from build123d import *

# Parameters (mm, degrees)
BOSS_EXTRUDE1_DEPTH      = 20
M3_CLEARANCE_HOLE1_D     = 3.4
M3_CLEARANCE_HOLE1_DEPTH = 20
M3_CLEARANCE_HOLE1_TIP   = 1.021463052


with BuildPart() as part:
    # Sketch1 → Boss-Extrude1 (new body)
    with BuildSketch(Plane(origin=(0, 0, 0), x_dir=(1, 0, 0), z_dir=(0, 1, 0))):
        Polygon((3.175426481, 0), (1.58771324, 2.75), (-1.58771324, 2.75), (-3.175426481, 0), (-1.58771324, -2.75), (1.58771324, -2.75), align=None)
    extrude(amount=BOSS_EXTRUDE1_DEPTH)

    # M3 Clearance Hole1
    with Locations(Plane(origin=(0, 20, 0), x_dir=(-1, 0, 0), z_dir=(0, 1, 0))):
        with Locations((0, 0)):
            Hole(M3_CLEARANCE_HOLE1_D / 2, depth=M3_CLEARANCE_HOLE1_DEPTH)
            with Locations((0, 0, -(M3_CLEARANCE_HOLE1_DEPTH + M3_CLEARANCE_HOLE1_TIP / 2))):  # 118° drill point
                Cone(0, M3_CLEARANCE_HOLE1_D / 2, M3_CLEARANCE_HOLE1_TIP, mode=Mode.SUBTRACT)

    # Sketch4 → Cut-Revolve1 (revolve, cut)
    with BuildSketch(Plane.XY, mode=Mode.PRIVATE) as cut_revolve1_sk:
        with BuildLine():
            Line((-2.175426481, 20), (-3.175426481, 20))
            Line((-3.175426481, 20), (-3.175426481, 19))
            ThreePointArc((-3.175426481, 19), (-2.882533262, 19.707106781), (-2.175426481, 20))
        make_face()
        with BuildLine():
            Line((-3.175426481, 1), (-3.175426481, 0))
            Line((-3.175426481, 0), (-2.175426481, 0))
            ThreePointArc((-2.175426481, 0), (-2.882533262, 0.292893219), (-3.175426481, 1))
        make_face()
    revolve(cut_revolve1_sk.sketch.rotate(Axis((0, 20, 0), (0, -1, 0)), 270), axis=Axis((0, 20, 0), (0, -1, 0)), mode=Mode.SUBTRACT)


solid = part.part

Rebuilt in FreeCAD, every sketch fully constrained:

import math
import FreeCAD as App
import Part
import Sketcher
from FreeCAD import Vector
Q = App.Units.Quantity

doc = App.newDocument("Part")
params = doc.addObject("Spreadsheet::Sheet", "Params")
for row, (alias, value) in enumerate([
    ("pad1_length", "20 mm"),
    ("sketch2_diameter", "3.4 mm"),
    ("hole_diameter", "3.4 mm"),
    ("hole_depth", "20 mm"),
    ("sketch3_radius", "1 mm"),
    ("groove_angle", "360 deg"),
], start=1):
    params.set(f"A{row}", alias)
    params.set(f"B{row}", "=" + value)
    params.setAlias(f"B{row}", alias)

body = doc.addObject("PartDesign::Body", "Body")

# Sketch on XZ plane
sketch1 = body.newObject("Sketcher::SketchObject", "Sketch")
sketch1.AttachmentSupport = (doc.getObject("XZ_Plane"), [""])
sketch1.MapMode = "FlatFace"
sketch1.addGeometry(Part.LineSegment(Vector(3.2, 0, 0), Vector(1.6, -2.8, 0)), False)
sketch1.addGeometry(Part.LineSegment(Vector(1.6, -2.8, 0), Vector(-1.6, -2.8, 0)), False)
sketch1.addGeometry(Part.LineSegment(Vector(-1.6, -2.8, 0), Vector(-3.2, 0, 0)), False)
sketch1.addGeometry(Part.LineSegment(Vector(-3.2, 0, 0), Vector(-1.6, 2.8, 0)), False)
sketch1.addGeometry(Part.LineSegment(Vector(-1.6, 2.8, 0), Vector(1.6, 2.8, 0)), False)
sketch1.addGeometry(Part.LineSegment(Vector(1.6, 2.8, 0), Vector(3.2, 0, 0)), False)
sketch1.addConstraint(Sketcher.Constraint("Coincident", 0, 2, 1, 1))
sketch1.addConstraint(Sketcher.Constraint("Coincident", 1, 2, 2, 1))
sketch1.addConstraint(Sketcher.Constraint("Coincident", 2, 2, 3, 1))
sketch1.addConstraint(Sketcher.Constraint("Coincident", 3, 2, 4, 1))
sketch1.addConstraint(Sketcher.Constraint("Coincident", 4, 2, 5, 1))
sketch1.addConstraint(Sketcher.Constraint("Coincident", 5, 2, 0, 1))
sketch1.addConstraint(Sketcher.Constraint("Horizontal", 1))
sketch1.addConstraint(Sketcher.Constraint("Horizontal", 4))
sketch1.addConstraint(Sketcher.Constraint("Symmetric", 0, 2, 3, 2, -1, 1))
sketch1.addConstraint(Sketcher.Constraint("Symmetric", 2, 2, 5, 2, -1, 1))
sketch1.addConstraint(Sketcher.Constraint("PointOnObject", 2, 2, -1))
sketch1.addConstraint(Sketcher.Constraint("Parallel", 2, 5))
sketch1.addConstraint(Sketcher.Constraint("Vertical", 1, 2, 3, 2))
sketch1.addConstraint(Sketcher.Constraint("Angle", 0, Q("-120 deg")))
sketch1.addConstraint(Sketcher.Constraint("DistanceY", 1, 2, 3, 2, 5.5))
sketch1.addConstraint(Sketcher.Constraint("DistanceX", 1, 2, 1, 1, 3.175426))
pad1 = body.newObject("PartDesign::Pad", "Pad")
pad1.Profile = sketch1
pad1.setExpression("Length", "Params.pad1_length")
pad1.Reversed = True

# Sketch on XZ plane
sketch2 = body.newObject("Sketcher::SketchObject", "Sketch001")
sketch2.AttachmentSupport = (doc.getObject("XZ_Plane"), [""])
sketch2.MapMode = "FlatFace"
sketch2.AttachmentOffset = App.Placement(Vector(0, 0, -20), App.Rotation())
sketch2.addGeometry(Part.Circle(Vector(0, 0, 0), Vector(0, 0, 1), 1.7), False)
sketch2.addConstraint(Sketcher.Constraint("Coincident", 0, 3, -1, 1))
sketch2.addConstraint(Sketcher.Constraint("Diameter", 0, 3.4))
sketch2.setExpression("Constraints[1]", "Params.sketch2_diameter")
doc.recompute()
hole = body.newObject("PartDesign::Hole", "Hole")
hole.Profile = sketch2
hole.ThreadType = "None"
hole.setExpression("Diameter", "Params.hole_diameter")
hole.DepthType = "Dimension"
hole.setExpression("Depth", "Params.hole_depth")
hole.DrillPoint = "Angled"
hole.DrillPointAngle = 118
hole.Reversed = True

# Sketch on XY plane
sketch3 = body.newObject("Sketcher::SketchObject", "Sketch002")
sketch3.AttachmentSupport = (doc.getObject("XY_Plane"), [""])
sketch3.MapMode = "FlatFace"
sketch3.addGeometry(Part.LineSegment(Vector(-2.2, 20, 0), Vector(-3.2, 20, 0)), False)
sketch3.addGeometry(Part.LineSegment(Vector(-3.2, 20, 0), Vector(-3.2, 19, 0)), False)
sketch3.addGeometry(Part.ArcOfCircle(Part.Circle(Vector(-2.2, 19, 0), Vector(0, 0, 1), 1), math.radians(90), math.radians(180)), False)
sketch3.addGeometry(Part.LineSegment(Vector(-3.2, 1, 0), Vector(-3.2, 0, 0)), False)
sketch3.addGeometry(Part.LineSegment(Vector(-3.2, 0, 0), Vector(-2.2, 0, 0)), False)
sketch3.addGeometry(Part.ArcOfCircle(Part.Circle(Vector(-2.2, 1, 0), Vector(0, 0, 1), 1), math.radians(-180), math.radians(-90)), False)
sketch3.addConstraint(Sketcher.Constraint("Coincident", 0, 2, 1, 1))
sketch3.addConstraint(Sketcher.Constraint("Tangent", 1, 2, 2, 2))
sketch3.addConstraint(Sketcher.Constraint("Tangent", 2, 1, 0, 1))
sketch3.addConstraint(Sketcher.Constraint("Coincident", 3, 2, 4, 1))
sketch3.addConstraint(Sketcher.Constraint("Tangent", 4, 2, 5, 2))
sketch3.addConstraint(Sketcher.Constraint("Tangent", 5, 1, 3, 1))
sketch3.addConstraint(Sketcher.Constraint("Horizontal", 0))
sketch3.addConstraint(Sketcher.Constraint("Vertical", 1))
sketch3.addConstraint(Sketcher.Constraint("Vertical", 3))
sketch3.addConstraint(Sketcher.Constraint("Horizontal", 4))
sketch3.addConstraint(Sketcher.Constraint("Equal", 2, 5))
sketch3.addConstraint(Sketcher.Constraint("PointOnObject", 3, 2, -1))
sketch3.addConstraint(Sketcher.Constraint("Vertical", 2, 3, 5, 3))
sketch3.addConstraint(Sketcher.Constraint("Radius", 2, 1.0))
sketch3.addConstraint(Sketcher.Constraint("DistanceY", -1, 1, 2, 3, 19.0))
sketch3.addConstraint(Sketcher.Constraint("DistanceX", 2, 3, -1, 1, 2.175426))
sketch3.setExpression("Constraints[13]", "Params.sketch3_radius")
groove = body.newObject("PartDesign::Groove", "Groove")
groove.Profile = sketch3
groove.ReferenceAxis = (sketch3, ["V_Axis"])
groove.setExpression("Angle", "Params.groove_angle")

doc.recompute()
